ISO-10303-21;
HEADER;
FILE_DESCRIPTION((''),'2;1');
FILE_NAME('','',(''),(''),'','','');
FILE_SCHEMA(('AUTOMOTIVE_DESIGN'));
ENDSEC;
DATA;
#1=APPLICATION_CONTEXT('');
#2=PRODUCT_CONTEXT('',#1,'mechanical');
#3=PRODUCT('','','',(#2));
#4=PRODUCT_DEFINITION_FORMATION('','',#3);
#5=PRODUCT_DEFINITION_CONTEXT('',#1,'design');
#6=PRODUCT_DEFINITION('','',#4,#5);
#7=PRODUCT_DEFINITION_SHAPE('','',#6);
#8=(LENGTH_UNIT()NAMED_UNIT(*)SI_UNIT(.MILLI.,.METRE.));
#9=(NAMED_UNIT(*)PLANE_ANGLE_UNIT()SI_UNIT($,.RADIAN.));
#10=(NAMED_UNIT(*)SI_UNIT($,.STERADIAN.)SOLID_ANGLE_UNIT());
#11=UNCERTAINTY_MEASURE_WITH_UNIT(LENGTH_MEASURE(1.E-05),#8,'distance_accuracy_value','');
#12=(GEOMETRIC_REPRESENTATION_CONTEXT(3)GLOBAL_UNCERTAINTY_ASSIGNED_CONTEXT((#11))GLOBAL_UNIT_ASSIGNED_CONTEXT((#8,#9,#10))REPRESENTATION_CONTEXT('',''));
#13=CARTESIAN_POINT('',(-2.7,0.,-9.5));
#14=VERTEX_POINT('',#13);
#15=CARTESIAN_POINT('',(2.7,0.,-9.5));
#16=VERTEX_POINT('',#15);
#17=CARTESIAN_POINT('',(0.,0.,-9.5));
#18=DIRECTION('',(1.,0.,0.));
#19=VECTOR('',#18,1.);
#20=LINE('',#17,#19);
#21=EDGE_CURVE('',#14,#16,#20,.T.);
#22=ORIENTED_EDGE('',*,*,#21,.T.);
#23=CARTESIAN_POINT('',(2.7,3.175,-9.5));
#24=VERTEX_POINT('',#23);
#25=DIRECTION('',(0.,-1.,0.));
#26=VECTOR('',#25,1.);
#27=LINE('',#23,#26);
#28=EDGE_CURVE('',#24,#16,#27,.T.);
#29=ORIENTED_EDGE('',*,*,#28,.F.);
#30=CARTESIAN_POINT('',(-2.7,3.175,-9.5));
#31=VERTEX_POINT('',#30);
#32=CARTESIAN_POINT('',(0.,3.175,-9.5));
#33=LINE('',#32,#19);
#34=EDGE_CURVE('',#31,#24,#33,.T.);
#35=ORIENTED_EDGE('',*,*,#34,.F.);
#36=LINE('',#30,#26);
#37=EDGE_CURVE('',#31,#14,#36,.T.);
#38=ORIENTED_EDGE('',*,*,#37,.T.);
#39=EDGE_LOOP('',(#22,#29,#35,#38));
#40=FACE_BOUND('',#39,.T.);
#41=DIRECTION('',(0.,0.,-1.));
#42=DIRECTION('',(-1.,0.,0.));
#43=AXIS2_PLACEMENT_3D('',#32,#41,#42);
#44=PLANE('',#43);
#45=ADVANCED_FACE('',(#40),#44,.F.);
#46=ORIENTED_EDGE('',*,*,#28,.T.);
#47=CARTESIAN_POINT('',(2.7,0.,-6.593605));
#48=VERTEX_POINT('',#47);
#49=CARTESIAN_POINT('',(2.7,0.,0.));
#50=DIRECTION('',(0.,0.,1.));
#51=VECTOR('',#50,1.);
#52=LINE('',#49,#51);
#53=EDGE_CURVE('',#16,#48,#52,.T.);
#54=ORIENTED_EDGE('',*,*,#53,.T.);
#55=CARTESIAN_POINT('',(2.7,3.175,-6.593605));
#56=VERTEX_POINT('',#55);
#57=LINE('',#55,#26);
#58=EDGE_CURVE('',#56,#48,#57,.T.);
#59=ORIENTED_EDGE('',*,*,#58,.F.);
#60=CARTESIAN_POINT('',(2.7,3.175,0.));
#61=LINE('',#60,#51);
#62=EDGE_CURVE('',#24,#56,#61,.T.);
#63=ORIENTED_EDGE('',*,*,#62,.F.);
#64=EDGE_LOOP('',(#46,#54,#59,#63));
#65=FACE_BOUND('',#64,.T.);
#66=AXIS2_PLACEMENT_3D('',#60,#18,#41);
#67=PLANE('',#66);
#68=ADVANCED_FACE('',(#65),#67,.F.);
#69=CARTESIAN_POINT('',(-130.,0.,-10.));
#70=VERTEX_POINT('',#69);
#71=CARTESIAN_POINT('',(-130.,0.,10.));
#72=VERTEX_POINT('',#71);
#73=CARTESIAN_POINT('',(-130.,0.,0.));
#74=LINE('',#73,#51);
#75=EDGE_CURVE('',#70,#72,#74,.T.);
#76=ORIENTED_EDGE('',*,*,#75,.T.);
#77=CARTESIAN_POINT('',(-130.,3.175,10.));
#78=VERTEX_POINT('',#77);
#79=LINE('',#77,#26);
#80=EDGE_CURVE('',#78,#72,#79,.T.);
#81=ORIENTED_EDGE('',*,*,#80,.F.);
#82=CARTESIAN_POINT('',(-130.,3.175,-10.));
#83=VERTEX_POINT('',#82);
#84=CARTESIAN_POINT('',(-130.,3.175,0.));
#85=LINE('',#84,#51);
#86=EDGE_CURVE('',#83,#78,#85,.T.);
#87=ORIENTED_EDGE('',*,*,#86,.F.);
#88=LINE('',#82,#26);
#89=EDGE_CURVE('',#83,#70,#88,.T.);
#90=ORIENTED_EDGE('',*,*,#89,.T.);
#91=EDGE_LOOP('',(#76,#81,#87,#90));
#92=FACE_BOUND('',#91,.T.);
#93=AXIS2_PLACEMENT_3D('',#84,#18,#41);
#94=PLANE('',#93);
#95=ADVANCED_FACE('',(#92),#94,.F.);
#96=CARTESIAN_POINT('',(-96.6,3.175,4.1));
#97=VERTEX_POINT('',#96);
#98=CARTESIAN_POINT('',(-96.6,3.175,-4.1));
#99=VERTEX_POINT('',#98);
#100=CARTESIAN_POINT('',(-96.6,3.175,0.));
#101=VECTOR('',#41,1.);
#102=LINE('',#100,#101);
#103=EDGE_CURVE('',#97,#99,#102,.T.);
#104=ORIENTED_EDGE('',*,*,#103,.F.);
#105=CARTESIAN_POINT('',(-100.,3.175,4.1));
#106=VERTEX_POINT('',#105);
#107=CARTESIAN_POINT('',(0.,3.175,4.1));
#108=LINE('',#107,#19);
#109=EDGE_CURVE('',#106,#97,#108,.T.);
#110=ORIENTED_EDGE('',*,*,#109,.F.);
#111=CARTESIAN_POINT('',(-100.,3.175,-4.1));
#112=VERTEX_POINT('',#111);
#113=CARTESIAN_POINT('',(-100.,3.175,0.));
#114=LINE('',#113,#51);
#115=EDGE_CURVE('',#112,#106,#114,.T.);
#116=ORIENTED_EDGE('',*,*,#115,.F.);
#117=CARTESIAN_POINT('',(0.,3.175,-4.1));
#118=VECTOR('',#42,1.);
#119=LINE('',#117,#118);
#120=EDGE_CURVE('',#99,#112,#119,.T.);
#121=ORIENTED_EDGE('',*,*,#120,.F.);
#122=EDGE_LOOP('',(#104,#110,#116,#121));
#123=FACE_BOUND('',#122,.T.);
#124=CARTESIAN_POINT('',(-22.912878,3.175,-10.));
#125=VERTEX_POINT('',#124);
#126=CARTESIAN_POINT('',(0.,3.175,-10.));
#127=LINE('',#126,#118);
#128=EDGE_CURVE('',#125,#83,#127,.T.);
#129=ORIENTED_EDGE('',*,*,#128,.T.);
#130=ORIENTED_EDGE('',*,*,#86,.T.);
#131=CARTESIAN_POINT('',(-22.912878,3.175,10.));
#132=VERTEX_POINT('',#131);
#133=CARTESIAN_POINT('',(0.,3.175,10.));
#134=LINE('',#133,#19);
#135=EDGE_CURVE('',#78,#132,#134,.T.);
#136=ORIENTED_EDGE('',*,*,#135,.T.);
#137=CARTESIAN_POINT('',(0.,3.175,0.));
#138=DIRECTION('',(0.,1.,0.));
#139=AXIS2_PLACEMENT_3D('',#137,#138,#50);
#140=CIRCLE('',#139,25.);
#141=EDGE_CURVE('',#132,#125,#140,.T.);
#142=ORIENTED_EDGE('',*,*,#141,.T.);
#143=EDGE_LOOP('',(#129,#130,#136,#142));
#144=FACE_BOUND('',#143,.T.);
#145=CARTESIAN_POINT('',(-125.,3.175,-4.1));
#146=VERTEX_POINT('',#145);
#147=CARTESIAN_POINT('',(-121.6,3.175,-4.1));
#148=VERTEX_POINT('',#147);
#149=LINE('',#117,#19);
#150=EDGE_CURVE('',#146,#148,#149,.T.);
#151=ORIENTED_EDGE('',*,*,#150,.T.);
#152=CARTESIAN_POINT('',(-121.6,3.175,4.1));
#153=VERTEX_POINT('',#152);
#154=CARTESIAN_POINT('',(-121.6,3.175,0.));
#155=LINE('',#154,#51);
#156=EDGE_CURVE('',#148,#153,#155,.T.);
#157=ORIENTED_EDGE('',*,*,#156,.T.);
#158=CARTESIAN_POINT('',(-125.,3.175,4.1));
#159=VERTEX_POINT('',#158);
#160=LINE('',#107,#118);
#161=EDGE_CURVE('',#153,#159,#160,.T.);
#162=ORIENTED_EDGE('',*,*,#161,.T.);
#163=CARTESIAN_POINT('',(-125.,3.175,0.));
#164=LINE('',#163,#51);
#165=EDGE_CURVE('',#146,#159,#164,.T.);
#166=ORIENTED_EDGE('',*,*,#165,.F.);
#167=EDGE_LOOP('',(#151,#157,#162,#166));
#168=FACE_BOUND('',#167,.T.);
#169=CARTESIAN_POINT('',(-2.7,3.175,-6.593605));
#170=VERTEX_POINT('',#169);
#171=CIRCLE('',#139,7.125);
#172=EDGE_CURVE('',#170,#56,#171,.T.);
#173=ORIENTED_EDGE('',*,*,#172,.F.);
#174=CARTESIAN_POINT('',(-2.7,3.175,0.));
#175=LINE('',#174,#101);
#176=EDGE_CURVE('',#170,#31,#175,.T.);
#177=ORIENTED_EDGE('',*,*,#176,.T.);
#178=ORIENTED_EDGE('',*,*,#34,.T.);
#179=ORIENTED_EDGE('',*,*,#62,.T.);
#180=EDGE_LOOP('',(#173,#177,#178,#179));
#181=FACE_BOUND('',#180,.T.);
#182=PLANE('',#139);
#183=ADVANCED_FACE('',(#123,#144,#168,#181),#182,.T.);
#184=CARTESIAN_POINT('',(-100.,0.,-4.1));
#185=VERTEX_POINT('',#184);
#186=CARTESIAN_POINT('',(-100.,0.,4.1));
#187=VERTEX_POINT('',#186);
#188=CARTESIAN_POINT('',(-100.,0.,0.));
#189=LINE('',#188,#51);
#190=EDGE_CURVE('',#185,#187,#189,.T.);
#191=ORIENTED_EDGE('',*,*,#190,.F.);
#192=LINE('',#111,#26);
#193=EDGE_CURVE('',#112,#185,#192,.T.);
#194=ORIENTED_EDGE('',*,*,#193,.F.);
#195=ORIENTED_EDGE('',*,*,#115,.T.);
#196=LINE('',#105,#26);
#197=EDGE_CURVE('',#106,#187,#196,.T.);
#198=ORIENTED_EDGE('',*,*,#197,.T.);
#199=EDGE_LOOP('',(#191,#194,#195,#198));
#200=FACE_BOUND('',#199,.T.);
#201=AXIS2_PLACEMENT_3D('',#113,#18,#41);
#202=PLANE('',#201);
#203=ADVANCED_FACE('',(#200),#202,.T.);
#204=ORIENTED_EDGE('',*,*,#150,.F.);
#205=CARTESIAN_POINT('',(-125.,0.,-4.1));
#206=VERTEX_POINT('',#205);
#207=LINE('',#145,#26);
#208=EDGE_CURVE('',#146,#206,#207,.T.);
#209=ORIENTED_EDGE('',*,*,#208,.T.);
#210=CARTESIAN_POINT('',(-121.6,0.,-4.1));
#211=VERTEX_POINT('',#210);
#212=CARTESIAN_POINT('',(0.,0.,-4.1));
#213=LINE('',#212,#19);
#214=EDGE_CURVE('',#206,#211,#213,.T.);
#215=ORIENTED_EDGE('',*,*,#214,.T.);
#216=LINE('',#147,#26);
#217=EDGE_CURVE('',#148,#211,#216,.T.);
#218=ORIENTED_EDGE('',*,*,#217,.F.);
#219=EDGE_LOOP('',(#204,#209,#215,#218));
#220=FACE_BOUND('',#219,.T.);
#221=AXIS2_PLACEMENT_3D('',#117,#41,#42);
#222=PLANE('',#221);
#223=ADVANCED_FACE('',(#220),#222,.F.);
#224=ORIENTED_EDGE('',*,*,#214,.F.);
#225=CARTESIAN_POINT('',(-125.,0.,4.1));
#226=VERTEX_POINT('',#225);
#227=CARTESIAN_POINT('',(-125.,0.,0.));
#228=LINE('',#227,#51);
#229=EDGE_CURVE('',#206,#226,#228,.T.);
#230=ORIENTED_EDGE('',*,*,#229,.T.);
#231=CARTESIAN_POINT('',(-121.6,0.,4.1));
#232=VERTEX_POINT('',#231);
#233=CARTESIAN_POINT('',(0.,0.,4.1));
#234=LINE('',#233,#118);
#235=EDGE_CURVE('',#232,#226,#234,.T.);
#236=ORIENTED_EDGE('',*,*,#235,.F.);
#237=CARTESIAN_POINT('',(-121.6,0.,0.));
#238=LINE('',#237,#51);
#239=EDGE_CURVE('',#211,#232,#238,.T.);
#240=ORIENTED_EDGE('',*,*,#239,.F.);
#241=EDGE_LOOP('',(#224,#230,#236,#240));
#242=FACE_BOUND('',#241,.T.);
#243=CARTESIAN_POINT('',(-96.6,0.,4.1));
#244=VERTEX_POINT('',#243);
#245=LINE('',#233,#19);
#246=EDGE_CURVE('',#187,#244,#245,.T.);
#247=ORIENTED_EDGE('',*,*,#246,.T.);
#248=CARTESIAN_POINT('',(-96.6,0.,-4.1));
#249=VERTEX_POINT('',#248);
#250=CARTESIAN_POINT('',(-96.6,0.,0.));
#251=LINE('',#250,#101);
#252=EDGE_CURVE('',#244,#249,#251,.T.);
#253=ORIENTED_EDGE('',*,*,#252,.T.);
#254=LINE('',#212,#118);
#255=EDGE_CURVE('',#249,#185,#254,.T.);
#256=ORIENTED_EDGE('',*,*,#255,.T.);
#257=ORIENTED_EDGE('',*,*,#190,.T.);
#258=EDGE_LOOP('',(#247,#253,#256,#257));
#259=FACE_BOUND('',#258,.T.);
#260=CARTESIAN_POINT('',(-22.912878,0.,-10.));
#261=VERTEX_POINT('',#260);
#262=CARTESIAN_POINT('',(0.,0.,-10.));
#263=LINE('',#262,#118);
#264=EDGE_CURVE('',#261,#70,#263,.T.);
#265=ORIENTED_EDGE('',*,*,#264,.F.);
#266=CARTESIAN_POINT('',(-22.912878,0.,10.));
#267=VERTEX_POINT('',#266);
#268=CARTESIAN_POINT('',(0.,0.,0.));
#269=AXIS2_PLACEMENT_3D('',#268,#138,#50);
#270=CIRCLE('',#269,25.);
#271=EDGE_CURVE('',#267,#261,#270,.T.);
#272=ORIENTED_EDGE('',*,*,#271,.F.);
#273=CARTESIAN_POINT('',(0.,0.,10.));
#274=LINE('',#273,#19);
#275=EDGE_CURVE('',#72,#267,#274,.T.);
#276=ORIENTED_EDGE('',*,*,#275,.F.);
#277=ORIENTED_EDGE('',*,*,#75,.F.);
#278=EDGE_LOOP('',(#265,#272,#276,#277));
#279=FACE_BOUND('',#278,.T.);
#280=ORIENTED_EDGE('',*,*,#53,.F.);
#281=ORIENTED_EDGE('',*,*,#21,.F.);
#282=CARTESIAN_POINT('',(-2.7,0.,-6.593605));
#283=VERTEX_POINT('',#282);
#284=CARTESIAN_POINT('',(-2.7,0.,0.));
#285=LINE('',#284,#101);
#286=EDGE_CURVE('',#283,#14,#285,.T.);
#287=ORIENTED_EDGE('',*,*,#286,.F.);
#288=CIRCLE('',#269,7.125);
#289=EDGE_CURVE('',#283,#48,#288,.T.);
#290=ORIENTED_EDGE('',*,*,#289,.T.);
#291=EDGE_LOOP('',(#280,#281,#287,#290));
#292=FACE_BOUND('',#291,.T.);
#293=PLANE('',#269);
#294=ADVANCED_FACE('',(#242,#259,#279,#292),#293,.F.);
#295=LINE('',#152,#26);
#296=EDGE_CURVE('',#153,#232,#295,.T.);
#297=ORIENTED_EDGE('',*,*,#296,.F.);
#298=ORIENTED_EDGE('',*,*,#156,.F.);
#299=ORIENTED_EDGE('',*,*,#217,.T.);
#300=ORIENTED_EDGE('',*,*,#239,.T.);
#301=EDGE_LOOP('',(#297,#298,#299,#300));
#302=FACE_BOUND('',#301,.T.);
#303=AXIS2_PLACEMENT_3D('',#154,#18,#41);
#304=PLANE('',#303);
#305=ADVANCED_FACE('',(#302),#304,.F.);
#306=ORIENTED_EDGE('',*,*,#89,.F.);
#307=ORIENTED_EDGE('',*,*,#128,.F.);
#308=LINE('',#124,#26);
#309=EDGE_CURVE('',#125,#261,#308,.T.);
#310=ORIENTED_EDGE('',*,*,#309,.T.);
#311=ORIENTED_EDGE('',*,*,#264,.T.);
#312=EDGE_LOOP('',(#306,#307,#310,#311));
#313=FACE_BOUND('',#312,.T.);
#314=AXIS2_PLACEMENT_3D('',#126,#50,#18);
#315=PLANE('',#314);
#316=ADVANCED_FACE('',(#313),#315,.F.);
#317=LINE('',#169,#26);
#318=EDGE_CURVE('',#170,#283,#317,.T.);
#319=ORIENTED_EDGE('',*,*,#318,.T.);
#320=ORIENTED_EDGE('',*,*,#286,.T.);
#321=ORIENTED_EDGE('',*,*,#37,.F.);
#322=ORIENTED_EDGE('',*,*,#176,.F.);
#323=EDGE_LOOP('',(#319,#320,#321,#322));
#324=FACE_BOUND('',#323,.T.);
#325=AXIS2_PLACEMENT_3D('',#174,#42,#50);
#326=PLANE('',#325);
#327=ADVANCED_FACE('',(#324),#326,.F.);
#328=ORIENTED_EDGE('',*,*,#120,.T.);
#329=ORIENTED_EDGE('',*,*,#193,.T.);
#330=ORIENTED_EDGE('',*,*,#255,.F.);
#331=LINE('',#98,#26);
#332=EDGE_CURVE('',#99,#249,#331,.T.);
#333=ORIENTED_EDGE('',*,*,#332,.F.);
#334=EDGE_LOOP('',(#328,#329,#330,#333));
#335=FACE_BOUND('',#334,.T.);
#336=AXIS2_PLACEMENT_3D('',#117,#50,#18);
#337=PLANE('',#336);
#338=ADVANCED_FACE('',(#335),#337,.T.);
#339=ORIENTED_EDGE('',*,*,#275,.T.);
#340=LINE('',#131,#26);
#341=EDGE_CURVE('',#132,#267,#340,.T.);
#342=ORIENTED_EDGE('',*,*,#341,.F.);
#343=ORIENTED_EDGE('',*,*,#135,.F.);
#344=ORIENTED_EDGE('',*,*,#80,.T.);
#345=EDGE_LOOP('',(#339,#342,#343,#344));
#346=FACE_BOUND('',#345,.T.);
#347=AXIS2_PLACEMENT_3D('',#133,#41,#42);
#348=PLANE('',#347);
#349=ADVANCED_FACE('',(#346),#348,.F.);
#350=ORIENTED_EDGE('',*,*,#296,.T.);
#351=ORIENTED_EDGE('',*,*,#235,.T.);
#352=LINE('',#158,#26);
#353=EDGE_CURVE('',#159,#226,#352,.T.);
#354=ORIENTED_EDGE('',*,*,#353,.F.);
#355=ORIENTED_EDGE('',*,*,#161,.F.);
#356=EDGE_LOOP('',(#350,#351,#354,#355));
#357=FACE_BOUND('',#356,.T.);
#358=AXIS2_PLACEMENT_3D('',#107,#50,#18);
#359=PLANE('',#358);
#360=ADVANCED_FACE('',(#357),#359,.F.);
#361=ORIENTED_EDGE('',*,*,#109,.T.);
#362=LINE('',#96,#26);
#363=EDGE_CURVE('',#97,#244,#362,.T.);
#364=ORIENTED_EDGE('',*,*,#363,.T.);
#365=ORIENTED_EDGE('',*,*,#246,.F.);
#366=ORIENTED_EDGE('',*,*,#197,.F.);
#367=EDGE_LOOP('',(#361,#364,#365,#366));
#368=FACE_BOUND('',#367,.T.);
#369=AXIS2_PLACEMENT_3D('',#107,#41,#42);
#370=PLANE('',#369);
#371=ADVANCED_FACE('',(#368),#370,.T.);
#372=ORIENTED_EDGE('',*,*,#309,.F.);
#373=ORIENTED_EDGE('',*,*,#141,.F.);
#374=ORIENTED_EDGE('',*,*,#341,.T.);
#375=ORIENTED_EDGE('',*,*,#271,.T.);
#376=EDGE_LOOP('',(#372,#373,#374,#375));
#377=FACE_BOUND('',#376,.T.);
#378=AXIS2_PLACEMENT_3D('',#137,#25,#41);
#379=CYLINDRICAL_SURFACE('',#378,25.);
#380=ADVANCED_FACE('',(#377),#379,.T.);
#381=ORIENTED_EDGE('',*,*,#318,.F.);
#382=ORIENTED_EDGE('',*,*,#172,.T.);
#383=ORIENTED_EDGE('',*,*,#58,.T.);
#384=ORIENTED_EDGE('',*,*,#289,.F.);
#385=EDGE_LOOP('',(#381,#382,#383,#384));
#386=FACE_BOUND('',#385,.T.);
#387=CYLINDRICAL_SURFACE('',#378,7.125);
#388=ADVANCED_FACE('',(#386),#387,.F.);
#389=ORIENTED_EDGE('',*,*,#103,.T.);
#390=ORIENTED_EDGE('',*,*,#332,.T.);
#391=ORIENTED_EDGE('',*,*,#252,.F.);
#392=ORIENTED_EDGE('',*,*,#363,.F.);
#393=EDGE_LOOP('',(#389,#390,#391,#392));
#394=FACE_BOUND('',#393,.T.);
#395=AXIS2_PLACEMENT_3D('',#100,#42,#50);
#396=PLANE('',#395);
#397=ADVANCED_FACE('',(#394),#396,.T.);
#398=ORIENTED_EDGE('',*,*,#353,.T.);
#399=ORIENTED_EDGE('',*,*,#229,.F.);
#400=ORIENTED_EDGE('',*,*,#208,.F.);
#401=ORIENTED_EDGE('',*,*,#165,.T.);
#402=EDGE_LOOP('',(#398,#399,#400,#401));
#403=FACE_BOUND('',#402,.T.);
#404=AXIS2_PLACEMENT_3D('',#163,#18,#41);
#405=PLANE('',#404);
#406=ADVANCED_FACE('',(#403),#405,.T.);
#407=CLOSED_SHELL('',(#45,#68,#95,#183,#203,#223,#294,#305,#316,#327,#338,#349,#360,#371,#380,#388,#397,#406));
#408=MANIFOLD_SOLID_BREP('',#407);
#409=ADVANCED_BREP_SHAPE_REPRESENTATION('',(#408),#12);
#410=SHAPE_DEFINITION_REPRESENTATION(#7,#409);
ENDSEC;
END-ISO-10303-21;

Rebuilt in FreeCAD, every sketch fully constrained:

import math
import FreeCAD as App
import Part
import Sketcher
Q = App.Units.Quantity


def add_polygon(sketch, points):
    """Adds a closed chain of lines whose ends are joined by coincident constraints."""
    first, n = sketch.GeometryCount, len(points)
    for a, b in zip(points, points[1:] + points[:1]):
        sketch.addGeometry(Part.LineSegment(App.Vector(*a, 0), App.Vector(*b, 0)), False)
    for i in range(n):
        sketch.addConstraint(Sketcher.Constraint("Coincident", first + i, 2, first + (i + 1) % n, 1))

doc = App.newDocument("Part")
params = doc.addObject("Spreadsheet::Sheet", "Params")
for row, (alias, value) in enumerate([
    ("sketch1_radius", "25 mm"),
    ("sketch1_height", "20 mm"),
    ("sketch1_width", "3.4 mm"),
    ("sketch1_width2", "5.4 mm"),
    ("sketch1_height2", "8.2 mm"),
    ("pad1_length", "3.175 mm"),
], start=1):
    params.set(f"A{row}", alias)
    params.set(f"B{row}", "=" + value)
    params.setAlias(f"B{row}", alias)

body = doc.addObject("PartDesign::Body", "Body")

sketch1 = doc.addObject("Sketcher::SketchObject", "Sketch")
body.addObject(sketch1)
sketch1.AttachmentSupport = (doc.XZ_Plane, [""])
sketch1.MapMode = "FlatFace"
sketch1.addGeometry(Part.ArcOfCircle(Part.Circle(App.Vector(0, 0, 0), App.Vector(0, 0, 1), 25), math.radians(-156), math.radians(156)), False)
sketch1.addGeometry(Part.LineSegment(App.Vector(-22.9, -10, 0), App.Vector(-130, -10, 0)), False)
sketch1.addGeometry(Part.LineSegment(App.Vector(-130, -10, 0), App.Vector(-130, 10, 0)), False)
sketch1.addGeometry(Part.LineSegment(App.Vector(-130, 10, 0), App.Vector(-22.9, 10, 0)), False)
add_polygon(sketch1, [(-121.6, 4.1), (-125, 4.1), (-125, -4.1), (-121.6, -4.1)])
add_polygon(sketch1, [(-96.6, 4.1), (-100, 4.1), (-100, -4.1), (-96.6, -4.1)])
sketch1.addGeometry(Part.ArcOfCircle(Part.Circle(App.Vector(0, 0, 0), App.Vector(0, 0, 1), 7.1), math.radians(-68), math.radians(248)), False)
sketch1.addGeometry(Part.LineSegment(App.Vector(-2.7, -6.6, 0), App.Vector(-2.7, -9.5, 0)), False)
sketch1.addGeometry(Part.LineSegment(App.Vector(-2.7, -9.5, 0), App.Vector(2.7, -9.5, 0)), False)
sketch1.addGeometry(Part.LineSegment(App.Vector(2.7, -9.5, 0), App.Vector(2.7, -6.6, 0)), False)
sketch1.addConstraint(Sketcher.Constraint("Coincident", 0, 1, 1, 1))
sketch1.addConstraint(Sketcher.Constraint("Coincident", 1, 2, 2, 1))
sketch1.addConstraint(Sketcher.Constraint("Coincident", 2, 2, 3, 1))
sketch1.addConstraint(Sketcher.Constraint("Coincident", 3, 2, 0, 2))
sketch1.addConstraint(Sketcher.Constraint("Coincident", 12, 2, 13, 1))
sketch1.addConstraint(Sketcher.Constraint("Coincident", 13, 2, 14, 1))
sketch1.addConstraint(Sketcher.Constraint("Coincident", 14, 2, 15, 1))
sketch1.addConstraint(Sketcher.Constraint("Coincident", 15, 2, 12, 1))
sketch1.addConstraint(Sketcher.Constraint("Horizontal", 1))
sketch1.addConstraint(Sketcher.Constraint("Vertical", 2))
sketch1.addConstraint(Sketcher.Constraint("Horizontal", 3))
sketch1.addConstraint(Sketcher.Constraint("Horizontal", 4))
sketch1.addConstraint(Sketcher.Constraint("Vertical", 5))
sketch1.addConstraint(Sketcher.Constraint("Horizontal", 6))
sketch1.addConstraint(Sketcher.Constraint("Vertical", 7))
sketch1.addConstraint(Sketcher.Constraint("Horizontal", 8))
sketch1.addConstraint(Sketcher.Constraint("Vertical", 9))
sketch1.addConstraint(Sketcher.Constraint("Horizontal", 10))
sketch1.addConstraint(Sketcher.Constraint("Vertical", 11))
sketch1.addConstraint(Sketcher.Constraint("Vertical", 13))
sketch1.addConstraint(Sketcher.Constraint("Horizontal", 14))
sketch1.addConstraint(Sketcher.Constraint("Vertical", 15))
sketch1.addConstraint(Sketcher.Constraint("Coincident", 0, 3, -1, 1))
sketch1.addConstraint(Sketcher.Constraint("Coincident", 12, 3, -1, 1))
sketch1.addConstraint(Sketcher.Constraint("Horizontal", 7, 2, 8, 2))
sketch1.addConstraint(Sketcher.Constraint("Horizontal", 6, 2, 9, 2))
sketch1.addConstraint(Sketcher.Constraint("Horizontal", 12, 2, 15, 2))
sketch1.addConstraint(Sketcher.Constraint("Vertical", 0, 1, 3, 2))
sketch1.addConstraint(Sketcher.Constraint("Equal", 6, 8))
sketch1.addConstraint(Sketcher.Constraint("Radius", 0, Q("25 mm")))
sketch1.addConstraint(Sketcher.Constraint("DistanceY", 2, 1, 2, 2, Q("20 mm")))
sketch1.addConstraint(Sketcher.Constraint("DistanceX", 4, 2, 4, 1, Q("3.4 mm")))
sketch1.addConstraint(Sketcher.Constraint("DistanceX", 14, 1, 14, 2, Q("5.4 mm")))
sketch1.addConstraint(Sketcher.Constraint("DistanceY", 5, 2, 5, 1, Q("8.2 mm")))
sketch1.addConstraint(Sketcher.Constraint("DistanceX", 1, 2, -1, 1, Q("130 mm")))
sketch1.addConstraint(Sketcher.Constraint("DistanceX", 4, 2, -1, 1, Q("125 mm")))
sketch1.addConstraint(Sketcher.Constraint("DistanceX", 8, 2, -1, 1, Q("100 mm")))
sketch1.addConstraint(Sketcher.Constraint("Radius", 12, Q("7.125 mm")))
sketch1.addConstraint(Sketcher.Constraint("DistanceY", -1, 1, 4, 2, Q("4.1 mm")))
sketch1.addConstraint(Sketcher.Constraint("DistanceY", 13, 2, -1, 1, Q("9.5 mm")))
sketch1.setExpression("Constraints[37]", "Params.sketch1_radius")
sketch1.setExpression("Constraints[38]", "Params.sketch1_height")
sketch1.setExpression("Constraints[39]", "Params.sketch1_width")
sketch1.setExpression("Constraints[40]", "Params.sketch1_width2")
sketch1.setExpression("Constraints[41]", "Params.sketch1_height2")
pad1 = doc.addObject("PartDesign::Pad", "Pad")
body.addObject(pad1)
pad1.Profile = sketch1
pad1.setExpression("Length", "Params.pad1_length")
pad1.Reversed = True

doc.recompute()
